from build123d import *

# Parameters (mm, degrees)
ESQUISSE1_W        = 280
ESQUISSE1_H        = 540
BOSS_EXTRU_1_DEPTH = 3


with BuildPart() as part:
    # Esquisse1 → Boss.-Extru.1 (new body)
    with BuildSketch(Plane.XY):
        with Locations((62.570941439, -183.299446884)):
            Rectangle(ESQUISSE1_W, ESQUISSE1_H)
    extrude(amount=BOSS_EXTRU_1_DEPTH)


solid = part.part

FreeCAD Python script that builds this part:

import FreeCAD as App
import Part
import Sketcher
from FreeCAD import Vector


def add_polygon(sketch, points):
    """Adds a closed chain of lines whose ends are joined by coincident constraints."""
    first, n = sketch.GeometryCount, len(points)
    for a, b in zip(points, points[1:] + points[:1]):
        sketch.addGeometry(Part.LineSegment(App.Vector(*a, 0), App.Vector(*b, 0)), False)
    for i in range(n):
        sketch.addConstraint(Sketcher.Constraint("Coincident", first + i, 2, first + (i + 1) % n, 1))

doc = App.newDocument("Part")
body = doc.addObject("PartDesign::Body", "Body")

# Sketch on XY plane
sketch1 = doc.addObject("Sketcher::SketchObject", "Sketch")
body.addObject(sketch1)
sketch1.AttachmentSupport = (doc.XY_Plane, [""])
sketch1.MapMode = "FlatFace"
add_polygon(sketch1, [(-77, 87), (-77, -453), (203, -453), (203, 87)])  # lines 0-3
sketch1.addConstraint([
    Sketcher.Constraint("Vertical", 0),
    Sketcher.Constraint("Horizontal", 1),
    Sketcher.Constraint("Vertical", 2),
    Sketcher.Constraint("Horizontal", 3),
    Sketcher.Constraint("DistanceX", 1, 1, 1, 2, 280.0),
    Sketcher.Constraint("DistanceY", 0, 2, 0, 1, 540.0),
    Sketcher.Constraint("DistanceX", 0, 2, -1, 1, 77.429059),
    Sketcher.Constraint("DistanceY", 0, 2, -1, 1, 453.299447),
])
pad1 = doc.addObject("PartDesign::Pad", "Pad")
body.addObject(pad1)
pad1.Profile = sketch1
pad1.Length = 3

doc.recompute()
